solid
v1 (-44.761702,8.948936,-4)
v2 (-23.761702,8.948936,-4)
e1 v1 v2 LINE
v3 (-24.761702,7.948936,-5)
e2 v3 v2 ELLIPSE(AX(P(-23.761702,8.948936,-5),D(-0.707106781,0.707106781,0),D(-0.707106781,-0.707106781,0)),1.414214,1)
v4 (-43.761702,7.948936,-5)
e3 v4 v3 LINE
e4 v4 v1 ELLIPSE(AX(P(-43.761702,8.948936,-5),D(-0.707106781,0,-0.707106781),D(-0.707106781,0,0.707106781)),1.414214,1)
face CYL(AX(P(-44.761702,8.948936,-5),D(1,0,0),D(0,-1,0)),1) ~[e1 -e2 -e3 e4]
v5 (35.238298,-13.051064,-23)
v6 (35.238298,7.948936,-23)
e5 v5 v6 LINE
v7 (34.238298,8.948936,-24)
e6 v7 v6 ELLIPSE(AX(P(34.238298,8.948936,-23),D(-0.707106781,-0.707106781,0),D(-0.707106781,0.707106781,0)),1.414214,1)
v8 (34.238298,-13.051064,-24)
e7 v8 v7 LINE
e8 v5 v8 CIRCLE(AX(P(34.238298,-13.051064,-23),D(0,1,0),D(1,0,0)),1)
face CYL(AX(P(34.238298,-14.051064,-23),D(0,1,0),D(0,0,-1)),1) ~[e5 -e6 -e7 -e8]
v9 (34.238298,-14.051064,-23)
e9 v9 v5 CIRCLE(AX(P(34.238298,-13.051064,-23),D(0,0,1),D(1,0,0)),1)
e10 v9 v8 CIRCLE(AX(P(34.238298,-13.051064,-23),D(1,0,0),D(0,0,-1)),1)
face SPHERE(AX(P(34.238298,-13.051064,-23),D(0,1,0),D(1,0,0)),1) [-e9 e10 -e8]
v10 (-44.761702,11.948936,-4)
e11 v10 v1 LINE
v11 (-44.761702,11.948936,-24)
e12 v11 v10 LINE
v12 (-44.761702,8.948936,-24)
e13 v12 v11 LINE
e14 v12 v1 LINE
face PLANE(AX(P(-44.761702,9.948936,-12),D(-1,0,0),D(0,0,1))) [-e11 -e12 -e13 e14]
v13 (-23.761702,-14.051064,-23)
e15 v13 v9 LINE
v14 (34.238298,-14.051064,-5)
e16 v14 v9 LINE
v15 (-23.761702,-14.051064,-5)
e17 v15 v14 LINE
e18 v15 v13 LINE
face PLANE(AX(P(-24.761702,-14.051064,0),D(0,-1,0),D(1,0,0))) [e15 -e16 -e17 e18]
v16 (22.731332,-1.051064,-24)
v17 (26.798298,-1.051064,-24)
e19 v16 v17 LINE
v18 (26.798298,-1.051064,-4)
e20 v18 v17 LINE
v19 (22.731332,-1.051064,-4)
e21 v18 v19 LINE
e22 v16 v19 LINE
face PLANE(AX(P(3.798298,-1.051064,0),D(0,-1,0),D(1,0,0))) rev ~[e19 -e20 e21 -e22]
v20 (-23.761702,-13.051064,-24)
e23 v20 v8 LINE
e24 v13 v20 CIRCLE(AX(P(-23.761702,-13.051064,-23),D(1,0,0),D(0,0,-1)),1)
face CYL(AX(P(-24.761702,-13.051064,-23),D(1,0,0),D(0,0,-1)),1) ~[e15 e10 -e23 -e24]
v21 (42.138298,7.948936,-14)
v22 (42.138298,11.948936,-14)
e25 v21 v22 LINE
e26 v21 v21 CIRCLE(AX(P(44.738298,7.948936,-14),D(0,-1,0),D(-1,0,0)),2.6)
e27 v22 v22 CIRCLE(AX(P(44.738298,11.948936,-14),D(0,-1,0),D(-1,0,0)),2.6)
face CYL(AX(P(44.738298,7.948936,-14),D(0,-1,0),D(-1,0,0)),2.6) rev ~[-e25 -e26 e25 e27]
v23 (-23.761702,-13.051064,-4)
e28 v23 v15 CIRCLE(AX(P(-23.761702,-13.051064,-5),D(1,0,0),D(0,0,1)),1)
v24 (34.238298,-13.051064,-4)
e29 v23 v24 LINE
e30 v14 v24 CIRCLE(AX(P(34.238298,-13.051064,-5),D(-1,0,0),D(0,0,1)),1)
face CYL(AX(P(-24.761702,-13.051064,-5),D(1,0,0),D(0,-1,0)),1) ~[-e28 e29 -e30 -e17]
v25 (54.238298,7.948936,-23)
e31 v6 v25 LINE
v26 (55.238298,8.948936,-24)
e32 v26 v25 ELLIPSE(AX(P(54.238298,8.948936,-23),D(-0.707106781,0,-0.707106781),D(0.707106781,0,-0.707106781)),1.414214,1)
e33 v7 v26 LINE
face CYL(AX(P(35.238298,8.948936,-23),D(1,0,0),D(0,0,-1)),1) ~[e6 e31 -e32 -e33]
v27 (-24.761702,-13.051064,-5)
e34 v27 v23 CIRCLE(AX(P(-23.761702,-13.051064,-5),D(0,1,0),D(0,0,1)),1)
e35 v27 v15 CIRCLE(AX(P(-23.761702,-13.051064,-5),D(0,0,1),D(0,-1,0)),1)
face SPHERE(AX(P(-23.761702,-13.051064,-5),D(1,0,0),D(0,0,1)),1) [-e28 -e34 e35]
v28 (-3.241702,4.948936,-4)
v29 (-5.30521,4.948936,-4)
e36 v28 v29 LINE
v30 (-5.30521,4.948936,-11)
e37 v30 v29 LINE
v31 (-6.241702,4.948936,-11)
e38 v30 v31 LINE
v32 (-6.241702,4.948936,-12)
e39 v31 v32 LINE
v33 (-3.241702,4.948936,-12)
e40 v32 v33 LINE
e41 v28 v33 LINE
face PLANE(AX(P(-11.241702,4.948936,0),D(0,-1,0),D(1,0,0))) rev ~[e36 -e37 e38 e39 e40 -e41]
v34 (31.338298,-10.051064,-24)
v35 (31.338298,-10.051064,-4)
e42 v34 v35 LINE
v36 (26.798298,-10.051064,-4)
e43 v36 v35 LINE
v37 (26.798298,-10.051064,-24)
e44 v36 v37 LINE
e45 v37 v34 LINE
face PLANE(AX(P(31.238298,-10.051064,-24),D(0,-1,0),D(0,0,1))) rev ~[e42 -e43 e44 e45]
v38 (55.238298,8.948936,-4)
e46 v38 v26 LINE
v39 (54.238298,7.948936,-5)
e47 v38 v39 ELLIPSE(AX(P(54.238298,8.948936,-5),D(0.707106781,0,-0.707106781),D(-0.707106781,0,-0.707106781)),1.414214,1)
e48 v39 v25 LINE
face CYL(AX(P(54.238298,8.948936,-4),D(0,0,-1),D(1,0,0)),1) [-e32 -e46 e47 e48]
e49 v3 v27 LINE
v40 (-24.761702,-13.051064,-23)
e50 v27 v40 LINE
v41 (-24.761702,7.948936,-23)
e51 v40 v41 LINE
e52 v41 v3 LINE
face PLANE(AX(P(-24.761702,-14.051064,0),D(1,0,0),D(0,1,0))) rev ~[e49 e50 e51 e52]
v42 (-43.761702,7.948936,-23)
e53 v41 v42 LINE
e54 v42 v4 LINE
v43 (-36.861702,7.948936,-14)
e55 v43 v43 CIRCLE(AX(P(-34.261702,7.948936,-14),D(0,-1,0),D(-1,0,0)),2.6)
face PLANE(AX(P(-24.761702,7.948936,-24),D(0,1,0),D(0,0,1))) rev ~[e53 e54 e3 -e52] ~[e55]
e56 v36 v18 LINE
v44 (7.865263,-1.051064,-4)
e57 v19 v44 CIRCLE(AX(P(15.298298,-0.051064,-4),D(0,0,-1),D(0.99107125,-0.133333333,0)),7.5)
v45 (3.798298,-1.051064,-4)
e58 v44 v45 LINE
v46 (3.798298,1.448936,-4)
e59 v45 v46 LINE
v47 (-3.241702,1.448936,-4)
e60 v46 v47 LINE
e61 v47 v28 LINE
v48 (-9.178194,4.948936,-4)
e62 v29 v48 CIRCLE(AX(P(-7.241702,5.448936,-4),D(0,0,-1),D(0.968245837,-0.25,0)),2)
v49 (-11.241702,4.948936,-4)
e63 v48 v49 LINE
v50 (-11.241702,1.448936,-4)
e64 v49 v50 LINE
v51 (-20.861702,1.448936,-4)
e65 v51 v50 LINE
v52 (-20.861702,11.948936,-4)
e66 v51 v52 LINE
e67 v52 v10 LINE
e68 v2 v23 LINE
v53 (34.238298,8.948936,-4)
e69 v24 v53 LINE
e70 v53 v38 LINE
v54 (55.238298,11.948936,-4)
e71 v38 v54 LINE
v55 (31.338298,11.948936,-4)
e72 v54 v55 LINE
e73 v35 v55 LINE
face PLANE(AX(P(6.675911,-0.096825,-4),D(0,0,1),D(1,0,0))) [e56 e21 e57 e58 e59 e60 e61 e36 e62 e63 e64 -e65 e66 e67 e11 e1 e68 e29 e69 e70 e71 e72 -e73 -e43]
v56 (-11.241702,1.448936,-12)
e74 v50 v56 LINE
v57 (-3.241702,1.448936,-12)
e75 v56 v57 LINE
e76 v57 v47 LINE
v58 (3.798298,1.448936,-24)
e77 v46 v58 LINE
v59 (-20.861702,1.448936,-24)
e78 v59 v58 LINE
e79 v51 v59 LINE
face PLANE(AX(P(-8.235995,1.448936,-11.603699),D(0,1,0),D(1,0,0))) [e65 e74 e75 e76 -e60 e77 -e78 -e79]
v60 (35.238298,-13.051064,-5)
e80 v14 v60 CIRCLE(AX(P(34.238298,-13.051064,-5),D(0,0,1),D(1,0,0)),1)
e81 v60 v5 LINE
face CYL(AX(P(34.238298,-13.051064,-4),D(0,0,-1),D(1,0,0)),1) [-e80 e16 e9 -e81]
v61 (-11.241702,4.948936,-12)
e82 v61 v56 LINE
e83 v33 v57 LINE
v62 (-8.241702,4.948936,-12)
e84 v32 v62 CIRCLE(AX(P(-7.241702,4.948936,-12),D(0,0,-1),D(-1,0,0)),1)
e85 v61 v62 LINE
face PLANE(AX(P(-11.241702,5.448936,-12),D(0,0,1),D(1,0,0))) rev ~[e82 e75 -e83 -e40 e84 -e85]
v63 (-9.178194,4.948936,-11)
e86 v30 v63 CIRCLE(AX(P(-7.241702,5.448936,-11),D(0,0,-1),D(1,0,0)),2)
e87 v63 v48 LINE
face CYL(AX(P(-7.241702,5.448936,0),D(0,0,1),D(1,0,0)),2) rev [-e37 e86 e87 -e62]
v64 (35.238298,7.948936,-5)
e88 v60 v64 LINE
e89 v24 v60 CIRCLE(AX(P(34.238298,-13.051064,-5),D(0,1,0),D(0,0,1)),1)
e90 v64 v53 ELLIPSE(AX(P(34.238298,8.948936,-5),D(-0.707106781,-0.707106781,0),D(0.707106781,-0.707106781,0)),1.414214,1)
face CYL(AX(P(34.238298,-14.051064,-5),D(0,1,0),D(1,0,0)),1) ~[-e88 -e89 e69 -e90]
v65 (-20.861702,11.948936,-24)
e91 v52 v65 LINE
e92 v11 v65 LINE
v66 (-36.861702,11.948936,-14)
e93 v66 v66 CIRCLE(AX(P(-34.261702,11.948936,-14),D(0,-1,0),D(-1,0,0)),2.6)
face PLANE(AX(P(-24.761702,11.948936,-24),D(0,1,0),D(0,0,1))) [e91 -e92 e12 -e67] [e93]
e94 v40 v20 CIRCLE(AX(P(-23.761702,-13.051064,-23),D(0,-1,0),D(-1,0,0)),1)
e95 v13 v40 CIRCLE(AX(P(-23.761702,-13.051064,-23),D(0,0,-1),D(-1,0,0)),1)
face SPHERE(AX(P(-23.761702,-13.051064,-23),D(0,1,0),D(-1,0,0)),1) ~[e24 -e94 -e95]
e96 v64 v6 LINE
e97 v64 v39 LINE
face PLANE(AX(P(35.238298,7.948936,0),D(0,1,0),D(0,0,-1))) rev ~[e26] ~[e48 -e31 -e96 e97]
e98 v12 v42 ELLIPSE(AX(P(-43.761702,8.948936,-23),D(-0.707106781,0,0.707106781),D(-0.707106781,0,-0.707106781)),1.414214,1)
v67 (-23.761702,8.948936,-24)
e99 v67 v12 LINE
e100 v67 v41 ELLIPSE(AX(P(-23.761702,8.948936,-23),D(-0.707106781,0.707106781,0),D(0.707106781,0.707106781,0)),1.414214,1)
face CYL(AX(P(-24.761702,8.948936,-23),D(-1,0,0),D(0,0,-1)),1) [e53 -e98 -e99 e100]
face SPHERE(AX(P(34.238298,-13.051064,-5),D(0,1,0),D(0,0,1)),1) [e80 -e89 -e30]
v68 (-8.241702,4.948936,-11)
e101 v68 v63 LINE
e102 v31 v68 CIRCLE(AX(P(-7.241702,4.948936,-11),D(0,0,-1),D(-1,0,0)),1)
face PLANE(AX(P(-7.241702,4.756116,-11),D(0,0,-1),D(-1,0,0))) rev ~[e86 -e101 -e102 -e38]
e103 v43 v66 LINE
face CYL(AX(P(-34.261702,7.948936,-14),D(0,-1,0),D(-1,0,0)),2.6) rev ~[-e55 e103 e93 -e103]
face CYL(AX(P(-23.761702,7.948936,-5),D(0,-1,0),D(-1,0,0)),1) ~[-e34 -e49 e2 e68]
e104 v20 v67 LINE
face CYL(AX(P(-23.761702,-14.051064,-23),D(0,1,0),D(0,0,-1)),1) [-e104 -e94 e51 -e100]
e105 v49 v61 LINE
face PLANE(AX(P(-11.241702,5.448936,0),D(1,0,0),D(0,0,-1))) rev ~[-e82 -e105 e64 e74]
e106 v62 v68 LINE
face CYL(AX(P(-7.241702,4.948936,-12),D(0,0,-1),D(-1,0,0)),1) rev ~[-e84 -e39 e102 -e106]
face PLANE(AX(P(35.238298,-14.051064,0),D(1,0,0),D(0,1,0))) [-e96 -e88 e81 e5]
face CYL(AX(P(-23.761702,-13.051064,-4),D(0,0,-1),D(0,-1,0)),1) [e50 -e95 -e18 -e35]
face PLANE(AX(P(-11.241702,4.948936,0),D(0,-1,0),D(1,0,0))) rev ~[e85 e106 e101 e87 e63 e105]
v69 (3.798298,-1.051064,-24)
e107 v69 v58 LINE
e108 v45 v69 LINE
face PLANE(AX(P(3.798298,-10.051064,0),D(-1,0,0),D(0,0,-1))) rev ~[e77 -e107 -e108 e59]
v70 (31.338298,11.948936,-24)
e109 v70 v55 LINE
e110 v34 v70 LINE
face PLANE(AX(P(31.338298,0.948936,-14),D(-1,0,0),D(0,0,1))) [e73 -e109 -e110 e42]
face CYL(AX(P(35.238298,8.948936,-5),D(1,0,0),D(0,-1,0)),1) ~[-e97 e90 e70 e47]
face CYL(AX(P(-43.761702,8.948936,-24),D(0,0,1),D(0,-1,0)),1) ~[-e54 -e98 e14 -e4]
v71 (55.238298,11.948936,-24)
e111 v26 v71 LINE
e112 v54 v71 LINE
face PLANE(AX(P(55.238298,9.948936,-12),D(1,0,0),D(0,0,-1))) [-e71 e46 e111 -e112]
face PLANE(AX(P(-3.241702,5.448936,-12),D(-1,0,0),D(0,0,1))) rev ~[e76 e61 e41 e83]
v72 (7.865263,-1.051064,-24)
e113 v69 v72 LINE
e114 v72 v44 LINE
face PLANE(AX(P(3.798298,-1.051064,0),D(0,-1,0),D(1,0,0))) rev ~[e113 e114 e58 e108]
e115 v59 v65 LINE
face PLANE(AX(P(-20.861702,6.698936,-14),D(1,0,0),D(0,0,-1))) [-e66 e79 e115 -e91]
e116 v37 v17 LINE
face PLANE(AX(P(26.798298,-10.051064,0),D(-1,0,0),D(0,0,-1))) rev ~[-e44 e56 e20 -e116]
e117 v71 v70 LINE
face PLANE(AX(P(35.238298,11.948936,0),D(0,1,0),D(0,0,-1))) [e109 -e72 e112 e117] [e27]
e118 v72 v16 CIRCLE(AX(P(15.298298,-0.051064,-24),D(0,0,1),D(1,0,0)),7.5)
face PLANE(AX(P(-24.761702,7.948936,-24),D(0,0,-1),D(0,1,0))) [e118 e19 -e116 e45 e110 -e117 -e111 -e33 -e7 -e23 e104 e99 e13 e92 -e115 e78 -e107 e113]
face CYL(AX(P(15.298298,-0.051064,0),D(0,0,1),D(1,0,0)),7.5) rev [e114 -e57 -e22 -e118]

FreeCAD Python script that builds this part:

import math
import FreeCAD as App
import Part
import Sketcher

V = App.Vector


def edges_at(feature, points):
    """Names of the edges that pass closest to the given points."""
    edges = feature.Shape.Edges
    near = lambda p: min(range(len(edges)), key=lambda i: edges[i].distToShape(Part.Vertex(*p))[0])
    return sorted({f"Edge{near(p) + 1}" for p in points})


def add_polygon(sketch, points):
    """Adds a closed chain of lines whose ends are joined by coincident constraints."""
    first, n = sketch.GeometryCount, len(points)
    for a, b in zip(points, points[1:] + points[:1]):
        sketch.addGeometry(Part.LineSegment(App.Vector(*a, 0), App.Vector(*b, 0)), False)
    for i in range(n):
        sketch.addConstraint(Sketcher.Constraint("Coincident", first + i, 2, first + (i + 1) % n, 1))

doc = App.newDocument("Part")
body = doc.addObject("PartDesign::Body", "Body")

# Sketch on XY plane
sketch1 = body.newObject("Sketcher::SketchObject", "Sketch")
sketch1.AttachmentSupport = (doc.getObject("XY_Plane"), [""])
sketch1.MapMode = "FlatFace"
add_polygon(sketch1, [(-25, 12), (-25, -14), (35, -14), (35, 12)])  # lines 0-3
sketch1.addConstraint([
    Sketcher.Constraint("Vertical", 0),
    Sketcher.Constraint("Horizontal", 1),
    Sketcher.Constraint("Vertical", 2),
    Sketcher.Constraint("Horizontal", 3),
    Sketcher.Constraint("DistanceX", 1, 1, 1, 2, 60.0),
    Sketcher.Constraint("DistanceY", 0, 2, 0, 1, 26.0),
    Sketcher.Constraint("DistanceX", 0, 2, -1, 1, 24.761702),
    Sketcher.Constraint("DistanceY", 0, 2, -1, 1, 14.051064),
])
pad1 = body.newObject("PartDesign::Pad", "Pad")
pad1.Profile = sketch1
pad1.Length = 24
pad1.Reversed = True

# Sketch on XY plane
sketch2 = body.newObject("Sketcher::SketchObject", "Sketch001")
sketch2.AttachmentSupport = (doc.getObject("XY_Plane"), [""])
sketch2.MapMode = "FlatFace"
add_polygon(sketch2, [(-21, -10), (31, -10), (31, 412), (-21, 412)])  # lines 0-3
sketch2.addConstraint([
    Sketcher.Constraint("Horizontal", 0),
    Sketcher.Constraint("Vertical", 1),
    Sketcher.Constraint("Horizontal", 2),
    Sketcher.Constraint("Vertical", 3),
    Sketcher.Constraint("DistanceX", 0, 1, 0, 2, 52.0),
    Sketcher.Constraint("DistanceY", 1, 1, 1, 2, 422.448377),
    Sketcher.Constraint("DistanceX", -1, 1, 0, 2, 31.238298),
    Sketcher.Constraint("DistanceY", 0, 2, -1, 1, 10.051064),
])
pocket1 = body.newObject("PartDesign::Pocket", "Pocket")
pocket1.Profile = sketch2
pocket1.Type = "ThroughAll"
pocket1.Midplane = True

# Sketch on XZ plane
sketch3 = body.newObject("Sketcher::SketchObject", "Sketch002")
sketch3.AttachmentSupport = (doc.getObject("XZ_Plane"), [""])
sketch3.MapMode = "FlatFace"
sketch3.AttachmentOffset = App.Placement(V(0, 0, 10.051064), App.Rotation())
add_polygon(sketch3, [(4, -24), (4, 0), (27, 0), (27, -24)])  # lines 0-3
sketch3.addConstraint([
    Sketcher.Constraint("Vertical", 0),
    Sketcher.Constraint("Horizontal", 1),
    Sketcher.Constraint("Vertical", 2),
    Sketcher.Constraint("Horizontal", 3),
    Sketcher.Constraint("PointOnObject", 0, 2, -1),
    Sketcher.Constraint("DistanceX", 1, 1, 1, 2, 23.0),
    Sketcher.Constraint("DistanceY", 0, 1, 0, 2, 24.0),
    Sketcher.Constraint("DistanceX", -1, 1, 0, 2, 3.798298),
])
pad2 = body.newObject("PartDesign::Pad", "Pad001")
pad2.Profile = sketch3
pad2.Length = 10
pad2.Reversed = True

# Sketch on XY plane
sketch4 = body.newObject("Sketcher::SketchObject", "Sketch003")
sketch4.AttachmentSupport = (doc.getObject("XY_Plane"), [""])
sketch4.MapMode = "FlatFace"
sketch4.addGeometry([
    Part.LineSegment(V(23, 0, 0), V(8, 0, 0)),
    Part.ArcOfCircle(Part.Circle(V(15, 0, 0), V(0, 0, 1), 8), math.radians(180), math.radians(360)),
], False)
sketch4.addConstraint([
    Sketcher.Constraint("Coincident", 0, 1, 1, 2),
    Sketcher.Constraint("Coincident", 1, 1, 0, 2),
    Sketcher.Constraint("Horizontal", 0),
    Sketcher.Constraint("Horizontal", 1, 3, 0, 1),
    Sketcher.Constraint("Radius", 1, 7.5),
    Sketcher.Constraint("DistanceX", -1, 1, 1, 3, 15.298298),
    Sketcher.Constraint("DistanceY", 1, 3, -1, 1, 0.051064),
])
pocket2 = body.newObject("PartDesign::Pocket", "Pocket001")
pocket2.Profile = sketch4
pocket2.Type = "ThroughAll"

# Sketch on XY plane
sketch5 = body.newObject("Sketcher::SketchObject", "Sketch004")
sketch5.AttachmentSupport = (doc.getObject("XY_Plane"), [""])
sketch5.MapMode = "FlatFace"
add_polygon(sketch5, [(3.8, -0.1), (3.8, -1.1), (26.8, -1.1), (26.8, -0.1)])  # lines 0-3
sketch5.addConstraint([
    Sketcher.Constraint("Vertical", 0),
    Sketcher.Constraint("Horizontal", 1),
    Sketcher.Constraint("Vertical", 2),
    Sketcher.Constraint("Horizontal", 3),
    Sketcher.Constraint("DistanceX", 1, 1, 1, 2, 23.0),
    Sketcher.Constraint("DistanceY", 0, 2, 0, 1, 1.0),
    Sketcher.Constraint("DistanceX", -1, 1, 0, 2, 3.798298),
    Sketcher.Constraint("DistanceY", 0, 2, -1, 1, 1.051064),
])
pocket3 = body.newObject("PartDesign::Pocket", "Pocket002")
pocket3.Profile = sketch5
pocket3.Type = "ThroughAll"

# Sketch on XZ plane
sketch6 = body.newObject("Sketcher::SketchObject", "Sketch005")
sketch6.AttachmentSupport = (doc.getObject("XZ_Plane"), [""])
sketch6.MapMode = "FlatFace"
sketch6.AttachmentOffset = App.Placement(V(0, 0, 10.051064), App.Rotation())
add_polygon(sketch6, [(-21, -24), (-21, 0), (4, 0), (4, -24)])  # lines 0-3
sketch6.addConstraint([
    Sketcher.Constraint("Vertical", 0),
    Sketcher.Constraint("Horizontal", 1),
    Sketcher.Constraint("Vertical", 2),
    Sketcher.Constraint("Horizontal", 3),
    Sketcher.Constraint("PointOnObject", 0, 2, -1),
    Sketcher.Constraint("DistanceY", 0, 1, 0, 2, 24.0),
    Sketcher.Constraint("DistanceX", 1, 1, 1, 2, 24.56),
    Sketcher.Constraint("DistanceX", 0, 2, -1, 1, 20.761702),
])
pad3 = body.newObject("PartDesign::Pad", "Pad002")
pad3.Profile = sketch6
pad3.Length = 15.5
pad3.Reversed = True

# Sketch on XZ plane
sketch7 = body.newObject("Sketcher::SketchObject", "Sketch006")
sketch7.AttachmentSupport = (doc.getObject("XZ_Plane"), [""])
sketch7.MapMode = "FlatFace"
sketch7.AttachmentOffset = App.Placement(V(0, 0, -5.448936), App.Rotation())
add_polygon(sketch7, [(-21, 0), (-11, 0), (-11, -12), (-3, -12), (-3, 0), (4, 0), (4, -24), (-21, -24)])  # lines 0-7
sketch7.addConstraint([
    Sketcher.Constraint("Horizontal", 0),
    Sketcher.Constraint("Vertical", 1),
    Sketcher.Constraint("Horizontal", 2),
    Sketcher.Constraint("Vertical", 3),
    Sketcher.Constraint("Horizontal", 4),
    Sketcher.Constraint("Vertical", 5),
    Sketcher.Constraint("Horizontal", 6),
    Sketcher.Constraint("Vertical", 7),
    Sketcher.Constraint("PointOnObject", 0, 2, -1),
    Sketcher.Constraint("PointOnObject", 3, 2, -1),
    Sketcher.Constraint("DistanceX", 2, 1, 2, 2, 8.0),
    Sketcher.Constraint("DistanceY", 1, 2, 1, 1, 12.0),
    Sketcher.Constraint("DistanceY", 5, 2, 5, 1, 24.0),
    Sketcher.Constraint("DistanceX", 0, 1, 0, 2, 9.52),
    Sketcher.Constraint("DistanceX", 4, 1, 4, 2, 7.04),
    Sketcher.Constraint("DistanceX", 0, 2, -1, 1, 11.241702),
])
pocket4 = body.newObject("PartDesign::Pocket", "Pocket003")
pocket4.Profile = sketch7
pocket4.Length = 4
pocket4.Reversed = True

# Sketch on XY plane
sketch8 = body.newObject("Sketcher::SketchObject", "Sketch007")
sketch8.AttachmentSupport = (doc.getObject("XY_Plane"), [""])
sketch8.MapMode = "FlatFace"
sketch8.addGeometry([
    Part.LineSegment(V(-5.2, 5.4, 0), V(-9.2, 5.4, 0)),
    Part.ArcOfCircle(Part.Circle(V(-7.2, 5.4, 0), V(0, 0, 1), 2), math.radians(180), math.radians(360)),
], False)
sketch8.addConstraint([
    Sketcher.Constraint("Coincident", 0, 1, 1, 2),
    Sketcher.Constraint("Coincident", 1, 1, 0, 2),
    Sketcher.Constraint("Horizontal", 0),
    Sketcher.Constraint("Horizontal", 1, 3, 0, 1),
    Sketcher.Constraint("Radius", 1, 2.0),
    Sketcher.Constraint("DistanceX", 1, 3, -1, 1, 7.241702),
    Sketcher.Constraint("DistanceY", -1, 1, 1, 3, 5.448936),
])
pocket5 = body.newObject("PartDesign::Pocket", "Pocket004")
pocket5.Profile = sketch8
pocket5.Length = 11

# Sketch on XY plane
sketch9 = body.newObject("Sketcher::SketchObject", "Sketch008")
sketch9.AttachmentSupport = (doc.getObject("XY_Plane"), [""])
sketch9.MapMode = "FlatFace"
add_polygon(sketch9, [(-11.2, 5.4), (-11.2, 4.9), (-3.2, 4.9), (-3.2, 5.4)])  # lines 0-3
sketch9.addConstraint([
    Sketcher.Constraint("Vertical", 0),
    Sketcher.Constraint("Horizontal", 1),
    Sketcher.Constraint("Vertical", 2),
    Sketcher.Constraint("Horizontal", 3),
    Sketcher.Constraint("DistanceX", 1, 1, 1, 2, 8.0),
    Sketcher.Constraint("DistanceY", 0, 2, 0, 1, 0.5),
    Sketcher.Constraint("DistanceX", 0, 2, -1, 1, 11.241702),
    Sketcher.Constraint("DistanceY", -1, 1, 0, 2, 4.948936),
])
pocket6 = body.newObject("PartDesign::Pocket", "Pocket005")
pocket6.Profile = sketch9
pocket6.Type = "ThroughAll"

# Sketch on XY plane
sketch10 = body.newObject("Sketcher::SketchObject", "Sketch009")
sketch10.AttachmentSupport = (doc.getObject("XY_Plane"), [""])
sketch10.MapMode = "FlatFace"
sketch10.AttachmentOffset = App.Placement(V(0, 0, -12), App.Rotation())
sketch10.addGeometry(Part.Circle(V(-7.2, 4.9, 0), V(0, 0, 1), 1), False)
sketch10.addConstraint([
    Sketcher.Constraint("Diameter", 0, 2.0),
    Sketcher.Constraint("DistanceX", 0, 3, -1, 1, 7.241702),
    Sketcher.Constraint("DistanceY", -1, 1, 0, 3, 4.948936),
])
pocket7 = body.newObject("PartDesign::Pocket", "Pocket006")
pocket7.Profile = sketch10
pocket7.Length = 11
pocket7.Reversed = True

# Sketch on YZ plane
sketch11 = body.newObject("Sketcher::SketchObject", "Sketch010")
sketch11.AttachmentSupport = (doc.getObject("YZ_Plane"), [""])
sketch11.MapMode = "FlatFace"
sketch11.AttachmentOffset = App.Placement(V(0, 0, 35.238298), App.Rotation())
add_polygon(sketch11, [(11.9, 0), (7.9, 0), (7.9, -24), (11.9, -24)])  # lines 0-3
sketch11.addConstraint([
    Sketcher.Constraint("Horizontal", 0),
    Sketcher.Constraint("Vertical", 1),
    Sketcher.Constraint("Horizontal", 2),
    Sketcher.Constraint("Vertical", 3),
    Sketcher.Constraint("PointOnObject", 0, 2, -1),
    Sketcher.Constraint("DistanceX", 0, 2, 0, 1, 4.0),
    Sketcher.Constraint("DistanceY", 1, 2, 1, 1, 24.0),
    Sketcher.Constraint("DistanceX", -1, 1, 0, 2, 7.948936),
])
pad4 = body.newObject("PartDesign::Pad", "Pad003")
pad4.Profile = sketch11
pad4.Length = 20

# Sketch on YZ plane
sketch12 = body.newObject("Sketcher::SketchObject", "Sketch011")
sketch12.AttachmentSupport = (doc.getObject("YZ_Plane"), [""])
sketch12.MapMode = "FlatFace"
sketch12.AttachmentOffset = App.Placement(V(0, 0, -24.761702), App.Rotation())
add_polygon(sketch12, [(11.9, -24), (7.9, -24), (7.9, 0), (11.9, 0)])  # lines 0-3
sketch12.addConstraint([
    Sketcher.Constraint("Horizontal", 0),
    Sketcher.Constraint("Vertical", 1),
    Sketcher.Constraint("Horizontal", 2),
    Sketcher.Constraint("Vertical", 3),
    Sketcher.Constraint("PointOnObject", 1, 2, -1),
    Sketcher.Constraint("DistanceX", 0, 2, 0, 1, 4.0),
    Sketcher.Constraint("DistanceY", 1, 1, 1, 2, 24.0),
    Sketcher.Constraint("DistanceX", -1, 1, 0, 2, 7.948936),
])
pad5 = body.newObject("PartDesign::Pad", "Pad004")
pad5.Profile = sketch12
pad5.Length = 20
pad5.Reversed = True

# Sketch on XY plane
sketch13 = body.newObject("Sketcher::SketchObject", "Sketch012")
sketch13.AttachmentSupport = (doc.getObject("XY_Plane"), [""])
sketch13.MapMode = "FlatFace"
sketch13.addGeometry([
    Part.LineSegment(V(-9.2, 4.9, 0), V(-11.2, 4.9, 0)),  # 0
    Part.LineSegment(V(-11.2, 4.9, 0), V(-11.2, 1.4, 0)),  # 1
    Part.LineSegment(V(-11.2, 1.4, 0), V(-20.8, 1.4, 0)),  # 2
    Part.LineSegment(V(-20.8, 1.4, 0), V(-20.8, 11.9, 0)),  # 3
    Part.LineSegment(V(-20.8, 11.9, 0), V(-44.8, 11.9, 0)),  # 4
    Part.LineSegment(V(-44.8, 11.9, 0), V(-44.8, 7.9, 0)),  # 5
    Part.LineSegment(V(-44.8, 7.9, 0), V(-24.8, 7.9, 0)),  # 6
    Part.LineSegment(V(-24.8, 7.9, 0), V(-24.8, -14.1, 0)),  # 7
    Part.LineSegment(V(-24.8, -14.1, 0), V(35.2, -14.1, 0)),  # 8
    Part.LineSegment(V(35.2, -14.1, 0), V(35.2, 7.9, 0)),  # 9
    Part.LineSegment(V(35.2, 7.9, 0), V(55.2, 7.9, 0)),  # 10
    Part.LineSegment(V(55.2, 7.9, 0), V(55.2, 11.9, 0)),  # 11
    Part.LineSegment(V(55.2, 11.9, 0), V(31.2, 11.9, 0)),  # 12
    Part.LineSegment(V(31.2, 11.9, 0), V(31.2, -10.1, 0)),  # 13
    Part.LineSegment(V(31.2, -10.1, 0), V(26.8, -10.1, 0)),  # 14
    Part.LineSegment(V(26.8, -10.1, 0), V(26.8, -1.1, 0)),  # 15
    Part.LineSegment(V(26.8, -1.1, 0), V(22.7, -1.1, 0)),  # 16
    Part.ArcOfCircle(Part.Circle(V(15.3, -0.1, 0), V(0, 0, 1), 7.5), math.radians(-172), math.radians(-8)),  # 17
    Part.LineSegment(V(7.9, -1.1, 0), V(3.8, -1.1, 0)),  # 18
    Part.LineSegment(V(3.8, -1.1, 0), V(3.8, 1.4, 0)),  # 19
    Part.LineSegment(V(3.8, 1.4, 0), V(-3.2, 1.4, 0)),  # 20
    Part.LineSegment(V(-3.2, 1.4, 0), V(-3.2, 4.9, 0)),  # 21
    Part.LineSegment(V(-3.2, 4.9, 0), V(-5.3, 4.9, 0)),  # 22
    Part.ArcOfCircle(Part.Circle(V(-7.2, 5.4, 0), V(0, 0, 1), 2), math.radians(-166), math.radians(-14)),  # 23
], False)
sketch13.addConstraint([
    Sketcher.Constraint("Coincident", 0, 2, 1, 1),
    Sketcher.Constraint("Coincident", 1, 2, 2, 1),
    Sketcher.Constraint("Coincident", 2, 2, 3, 1),
    Sketcher.Constraint("Coincident", 3, 2, 4, 1),
    Sketcher.Constraint("Coincident", 4, 2, 5, 1),
    Sketcher.Constraint("Coincident", 5, 2, 6, 1),
    Sketcher.Constraint("Coincident", 6, 2, 7, 1),
    Sketcher.Constraint("Coincident", 7, 2, 8, 1),
    Sketcher.Constraint("Coincident", 8, 2, 9, 1),
    Sketcher.Constraint("Coincident", 9, 2, 10, 1),
    Sketcher.Constraint("Coincident", 10, 2, 11, 1),
    Sketcher.Constraint("Coincident", 11, 2, 12, 1),
    Sketcher.Constraint("Coincident", 12, 2, 13, 1),
    Sketcher.Constraint("Coincident", 13, 2, 14, 1),
    Sketcher.Constraint("Coincident", 14, 2, 15, 1),
    Sketcher.Constraint("Coincident", 15, 2, 16, 1),
    Sketcher.Constraint("Coincident", 16, 2, 17, 2),
    Sketcher.Constraint("Coincident", 17, 1, 18, 1),
    Sketcher.Constraint("Coincident", 18, 2, 19, 1),
    Sketcher.Constraint("Coincident", 19, 2, 20, 1),
    Sketcher.Constraint("Coincident", 20, 2, 21, 1),
    Sketcher.Constraint("Coincident", 21, 2, 22, 1),
    Sketcher.Constraint("Coincident", 22, 2, 23, 2),
    Sketcher.Constraint("Coincident", 23, 1, 0, 1),
    Sketcher.Constraint("Horizontal", 0),
    Sketcher.Constraint("Vertical", 1),
    Sketcher.Constraint("Horizontal", 2),
    Sketcher.Constraint("Vertical", 3),
    Sketcher.Constraint("Horizontal", 4),
    Sketcher.Constraint("Vertical", 5),
    Sketcher.Constraint("Horizontal", 6),
    Sketcher.Constraint("Vertical", 7),
    Sketcher.Constraint("Horizontal", 8),
    Sketcher.Constraint("Vertical", 9),
    Sketcher.Constraint("Horizontal", 10),
    Sketcher.Constraint("Vertical", 11),
    Sketcher.Constraint("Horizontal", 12),
    Sketcher.Constraint("Vertical", 13),
    Sketcher.Constraint("Horizontal", 14),
    Sketcher.Constraint("Vertical", 15),
    Sketcher.Constraint("Horizontal", 16),
    Sketcher.Constraint("Horizontal", 18),
    Sketcher.Constraint("Vertical", 19),
    Sketcher.Constraint("Horizontal", 20),
    Sketcher.Constraint("Vertical", 21),
    Sketcher.Constraint("Horizontal", 22),
    Sketcher.Constraint("Horizontal", 6, 2, 9, 2),
    Sketcher.Constraint("Horizontal", 4, 2, 11, 2),
    Sketcher.Constraint("Horizontal", 16, 2, 17, 1),
    Sketcher.Constraint("Horizontal", 2, 2, 19, 2),
    Sketcher.Constraint("Horizontal", 0, 2, 21, 2),
    Sketcher.Constraint("Equal", 6, 10),
    Sketcher.Constraint("Equal", 4, 12),
    Sketcher.Constraint("Equal", 16, 18),
    Sketcher.Constraint("Equal", 0, 22),
    Sketcher.Constraint("Equal", 9, 13),
    Sketcher.Constraint("Radius", 23, 2.0),
    Sketcher.Constraint("Radius", 17, 7.5),
    Sketcher.Constraint("DistanceX", 4, 2, 4, 1, 24.0),
    Sketcher.Constraint("DistanceX", 6, 1, 6, 2, 20.0),
    Sketcher.Constraint("DistanceX", 8, 1, 8, 2, 60.0),
    Sketcher.Constraint("DistanceY", 5, 2, 5, 1, 4.0),
    Sketcher.Constraint("DistanceY", 7, 2, 7, 1, 22.0),
    Sketcher.Constraint("DistanceY", 15, 1, 15, 2, 9.0),
    Sketcher.Constraint("DistanceY", 1, 2, 1, 1, 3.5),
    Sketcher.Constraint("DistanceY", 3, 1, 3, 2, 10.5),
    Sketcher.Constraint("DistanceX", 0, 2, 23, 3, 4.0),
    Sketcher.Constraint("DistanceY", 17, 3, 0, 2, 5.0),
    Sketcher.Constraint("DistanceY", 1, 2, 23, 3, 4.0),
    Sketcher.Constraint("DistanceX", 2, 2, 2, 1, 9.52),
    Sketcher.Constraint("DistanceX", 14, 2, 14, 1, 4.44),
    Sketcher.Constraint("DistanceX", 20, 2, 20, 1, 7.04),
    Sketcher.Constraint("DistanceX", 22, 2, -1, 1, 5.30521),
    Sketcher.Constraint("DistanceY", 17, 3, -1, 1, 0.051064),
])
pocket8 = body.newObject("PartDesign::Pocket", "Pocket007")
pocket8.Profile = sketch13
pocket8.Length = 4
doc.recompute()

fillet = body.newObject("PartDesign::Fillet", "Fillet")
fillet.Base = (pocket8, edges_at(pocket8, [
    (35.238, -3.051, -24),
    (45.238, 7.949, -24),
    (-24.762, -3.051, -24),
    (-34.762, 7.949, -24),
    (-44.762, 7.949, -14),
    (55.238, 7.949, -14),
    (45.238, 7.949, -4),
    (35.238, -3.051, -4),
    (5.238, -14.051, -4),
    (-24.762, -3.051, -4),
    (-34.762, 7.949, -4),
    (35.238, -14.051, -14),
    (-24.762, -14.051, -14),
    (5.238, -14.051, -24),
]))
fillet.Radius = 1

# Sketch on XZ plane
sketch14 = body.newObject("Sketcher::SketchObject", "Sketch013")
sketch14.AttachmentSupport = (doc.getObject("XZ_Plane"), [""])
sketch14.MapMode = "FlatFace"
sketch14.AttachmentOffset = App.Placement(V(0, 0, -7.948936), App.Rotation())
sketch14.addGeometry(Part.Circle(V(-34.3, -14, 0), V(0, 0, 1), 2.6), False)
sketch14.addConstraint([
    Sketcher.Constraint("Diameter", 0, 5.2),
    Sketcher.Constraint("DistanceY", 0, 3, -1, 1, 14.0),
    Sketcher.Constraint("DistanceX", 0, 3, -1, 1, 34.261702),
])
pocket9 = body.newObject("PartDesign::Pocket", "Pocket008")
pocket9.Profile = sketch14
pocket9.Length = 4

# Sketch on XZ plane
sketch15 = body.newObject("Sketcher::SketchObject", "Sketch014")
sketch15.AttachmentSupport = (doc.getObject("XZ_Plane"), [""])
sketch15.MapMode = "FlatFace"
sketch15.AttachmentOffset = App.Placement(V(0, 0, -7.948936), App.Rotation())
sketch15.addGeometry(Part.Circle(V(44.7, -14, 0), V(0, 0, 1), 2.6), False)
sketch15.addConstraint([
    Sketcher.Constraint("Diameter", 0, 5.2),
    Sketcher.Constraint("DistanceY", 0, 3, -1, 1, 14.0),
    Sketcher.Constraint("DistanceX", -1, 1, 0, 3, 44.738298),
])
pocket10 = body.newObject("PartDesign::Pocket", "Pocket009")
pocket10.Profile = sketch15
pocket10.Length = 4

# Sketch on YZ plane
sketch16 = body.newObject("Sketcher::SketchObject", "Sketch015")
sketch16.AttachmentSupport = (doc.getObject("YZ_Plane"), [""])
sketch16.MapMode = "FlatFace"
sketch16.AttachmentOffset = App.Placement(V(0, 0, 31.238298), App.Rotation())
add_polygon(sketch16, [(12, -24), (-10, -24), (-10, -4), (12, -4)])  # lines 0-3
sketch16.addConstraint([
    Sketcher.Constraint("Horizontal", 0),
    Sketcher.Constraint("Vertical", 1),
    Sketcher.Constraint("Horizontal", 2),
    Sketcher.Constraint("Vertical", 3),
    Sketcher.Constraint("DistanceX", 0, 2, 0, 1, 22.0),
    Sketcher.Constraint("DistanceY", 1, 1, 1, 2, 20.0),
    Sketcher.Constraint("DistanceY", 0, 2, -1, 1, 24.0),
    Sketcher.Constraint("DistanceX", 0, 2, -1, 1, 10.051064),
])
pocket11 = body.newObject("PartDesign::Pocket", "Pocket010")
pocket11.Profile = sketch16
pocket11.Length = 0.1
pocket11.Reversed = True

# Sketch on YZ plane
sketch17 = body.newObject("Sketcher::SketchObject", "Sketch016")
sketch17.AttachmentSupport = (doc.getObject("YZ_Plane"), [""])
sketch17.MapMode = "FlatFace"
sketch17.AttachmentOffset = App.Placement(V(0, 0, -20.761702), App.Rotation())
add_polygon(sketch17, [(12, -4), (1, -4), (1, -24), (12, -24)])  # lines 0-3
sketch17.addConstraint([
    Sketcher.Constraint("Horizontal", 0),
    Sketcher.Constraint("Vertical", 1),
    Sketcher.Constraint("Horizontal", 2),
    Sketcher.Constraint("Vertical", 3),
    Sketcher.Constraint("DistanceY", 1, 2, 1, 1, 20.0),
    Sketcher.Constraint("DistanceX", 0, 2, 0, 1, 10.5),
    Sketcher.Constraint("DistanceY", 0, 2, -1, 1, 4.0),
    Sketcher.Constraint("DistanceX", -1, 1, 0, 2, 1.448936),
])
pocket12 = body.newObject("PartDesign::Pocket", "Pocket011")
pocket12.Profile = sketch17
pocket12.Length = 0.1

doc.recompute()
